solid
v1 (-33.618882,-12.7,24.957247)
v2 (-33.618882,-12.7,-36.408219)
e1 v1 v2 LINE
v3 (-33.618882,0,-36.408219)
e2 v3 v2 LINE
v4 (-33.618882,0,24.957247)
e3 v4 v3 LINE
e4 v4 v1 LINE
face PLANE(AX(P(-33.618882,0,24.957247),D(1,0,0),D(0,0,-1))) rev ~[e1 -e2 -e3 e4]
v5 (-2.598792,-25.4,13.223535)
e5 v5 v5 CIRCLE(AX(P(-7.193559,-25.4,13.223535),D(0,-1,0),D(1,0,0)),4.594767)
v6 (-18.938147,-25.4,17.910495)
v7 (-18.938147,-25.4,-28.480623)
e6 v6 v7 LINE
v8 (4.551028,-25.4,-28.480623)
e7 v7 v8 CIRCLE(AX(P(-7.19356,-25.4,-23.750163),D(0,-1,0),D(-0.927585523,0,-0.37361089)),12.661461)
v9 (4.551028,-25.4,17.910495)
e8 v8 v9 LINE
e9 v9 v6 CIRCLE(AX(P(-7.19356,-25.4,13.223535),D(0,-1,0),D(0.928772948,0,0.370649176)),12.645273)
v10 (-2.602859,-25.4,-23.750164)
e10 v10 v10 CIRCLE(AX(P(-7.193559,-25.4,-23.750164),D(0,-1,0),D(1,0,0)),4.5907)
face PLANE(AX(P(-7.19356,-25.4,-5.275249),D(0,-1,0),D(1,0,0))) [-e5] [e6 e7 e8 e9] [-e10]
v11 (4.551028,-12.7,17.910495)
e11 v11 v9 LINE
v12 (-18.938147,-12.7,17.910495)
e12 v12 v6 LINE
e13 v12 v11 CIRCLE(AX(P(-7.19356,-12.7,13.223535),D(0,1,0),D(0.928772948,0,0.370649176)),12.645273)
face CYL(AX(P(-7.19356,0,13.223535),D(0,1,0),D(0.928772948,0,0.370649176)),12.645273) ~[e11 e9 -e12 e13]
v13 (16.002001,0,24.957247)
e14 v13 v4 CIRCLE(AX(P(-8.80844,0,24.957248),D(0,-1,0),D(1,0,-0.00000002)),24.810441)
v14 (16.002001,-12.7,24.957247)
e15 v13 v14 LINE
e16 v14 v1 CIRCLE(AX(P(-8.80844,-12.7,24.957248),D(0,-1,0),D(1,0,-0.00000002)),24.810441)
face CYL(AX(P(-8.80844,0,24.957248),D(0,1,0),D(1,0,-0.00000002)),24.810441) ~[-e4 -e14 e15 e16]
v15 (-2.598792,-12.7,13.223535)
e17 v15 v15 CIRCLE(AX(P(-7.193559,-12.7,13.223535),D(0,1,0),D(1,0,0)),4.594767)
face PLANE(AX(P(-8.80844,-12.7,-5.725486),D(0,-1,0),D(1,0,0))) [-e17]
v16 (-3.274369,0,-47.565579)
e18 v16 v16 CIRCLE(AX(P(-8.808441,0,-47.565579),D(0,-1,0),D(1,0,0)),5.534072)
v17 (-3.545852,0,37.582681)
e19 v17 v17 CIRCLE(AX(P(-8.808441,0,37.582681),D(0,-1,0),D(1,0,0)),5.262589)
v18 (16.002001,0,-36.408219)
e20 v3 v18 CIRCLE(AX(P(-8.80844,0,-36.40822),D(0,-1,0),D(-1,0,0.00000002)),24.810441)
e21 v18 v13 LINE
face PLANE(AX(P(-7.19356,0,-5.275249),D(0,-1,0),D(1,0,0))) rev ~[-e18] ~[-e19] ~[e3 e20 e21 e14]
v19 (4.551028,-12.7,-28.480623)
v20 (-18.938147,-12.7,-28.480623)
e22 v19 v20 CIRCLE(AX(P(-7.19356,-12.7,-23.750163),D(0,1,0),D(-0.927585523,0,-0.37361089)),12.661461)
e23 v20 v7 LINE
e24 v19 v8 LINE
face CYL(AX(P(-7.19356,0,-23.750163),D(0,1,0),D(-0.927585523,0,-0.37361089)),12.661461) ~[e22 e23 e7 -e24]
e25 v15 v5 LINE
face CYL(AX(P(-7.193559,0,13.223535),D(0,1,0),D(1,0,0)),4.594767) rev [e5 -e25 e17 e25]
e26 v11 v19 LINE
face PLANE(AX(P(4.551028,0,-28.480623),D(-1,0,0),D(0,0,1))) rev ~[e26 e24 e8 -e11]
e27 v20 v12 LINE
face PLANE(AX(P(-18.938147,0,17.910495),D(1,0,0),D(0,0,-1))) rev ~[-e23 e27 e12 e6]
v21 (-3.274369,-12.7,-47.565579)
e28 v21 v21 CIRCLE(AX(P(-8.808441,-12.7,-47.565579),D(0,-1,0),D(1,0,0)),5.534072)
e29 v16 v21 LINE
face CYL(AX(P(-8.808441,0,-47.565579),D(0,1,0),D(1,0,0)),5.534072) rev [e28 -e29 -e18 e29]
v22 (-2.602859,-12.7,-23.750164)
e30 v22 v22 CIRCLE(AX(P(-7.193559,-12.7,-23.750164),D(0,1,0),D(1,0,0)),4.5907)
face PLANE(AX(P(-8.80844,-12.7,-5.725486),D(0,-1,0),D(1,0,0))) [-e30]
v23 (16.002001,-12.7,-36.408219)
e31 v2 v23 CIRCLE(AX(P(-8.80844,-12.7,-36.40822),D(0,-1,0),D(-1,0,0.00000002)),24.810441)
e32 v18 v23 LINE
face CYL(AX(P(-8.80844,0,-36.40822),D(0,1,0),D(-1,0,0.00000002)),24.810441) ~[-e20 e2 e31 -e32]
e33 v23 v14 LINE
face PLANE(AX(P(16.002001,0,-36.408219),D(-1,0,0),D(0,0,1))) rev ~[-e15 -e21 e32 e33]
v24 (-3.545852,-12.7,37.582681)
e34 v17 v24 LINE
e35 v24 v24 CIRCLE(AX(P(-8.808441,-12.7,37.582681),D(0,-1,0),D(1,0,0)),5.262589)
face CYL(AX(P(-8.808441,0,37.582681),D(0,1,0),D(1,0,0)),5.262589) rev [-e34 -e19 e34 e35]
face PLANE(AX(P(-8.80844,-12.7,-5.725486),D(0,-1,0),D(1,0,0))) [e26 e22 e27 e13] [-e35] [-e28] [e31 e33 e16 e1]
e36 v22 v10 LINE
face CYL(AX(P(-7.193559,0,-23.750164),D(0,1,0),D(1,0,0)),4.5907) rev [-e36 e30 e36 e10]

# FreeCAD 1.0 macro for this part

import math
import FreeCAD as App
import Part
import Sketcher
Q = App.Units.Quantity

doc = App.newDocument("Part")
params = doc.addObject("Spreadsheet::Sheet", "Params")
for row, (alias, value) in enumerate([
    ("pad1_length", "0.5 in"),
    ("pad2_length", "1 in"),
], start=1):
    params.set(f"A{row}", alias)
    params.set(f"B{row}", "=" + value)
    params.setAlias(f"B{row}", alias)

body = doc.addObject("PartDesign::Body", "Body")

sketch1 = doc.addObject("Sketcher::SketchObject", "Sketch")
body.addObject(sketch1)
sketch1.AttachmentSupport = (doc.XZ_Plane, [""])
sketch1.MapMode = "FlatFace"
sketch1.addGeometry([
    Part.ArcOfCircle(Part.Circle(App.Vector(-9, 25, 0), App.Vector(0, 0, 1), 25), math.radians(0), math.radians(180)),
    Part.LineSegment(App.Vector(-34, 25, 0), App.Vector(-34, -36, 0)),
    Part.ArcOfCircle(Part.Circle(App.Vector(-9, -36, 0), App.Vector(0, 0, 1), 25), math.radians(180), math.radians(360)),
    Part.LineSegment(App.Vector(16, -36, 0), App.Vector(16, 25, 0)),
    Part.Circle(App.Vector(-9, -48, 0), App.Vector(0, 0, 1), 6),
    Part.Circle(App.Vector(-9, 38, 0), App.Vector(0, 0, 1), 5),
], False)
sketch1.addConstraint([
    Sketcher.Constraint("Tangent", 0, 2, 1, 1),
    Sketcher.Constraint("Tangent", 1, 2, 2, 1),
    Sketcher.Constraint("Tangent", 2, 2, 3, 1),
    Sketcher.Constraint("Tangent", 3, 2, 0, 1),
    Sketcher.Constraint("Vertical", 1),
    Sketcher.Constraint("Vertical", 3),
    Sketcher.Constraint("Vertical", 2, 3, 4, 3),
    Sketcher.Constraint("Vertical", 4, 3, 5, 3),
    Sketcher.Constraint("DistanceX", -1, 1, 2, 2, Q("0.63 in")),
    Sketcher.Constraint("Radius", 0, 24.810441),
    Sketcher.Constraint("Diameter", 4, 11.068144),
    Sketcher.Constraint("Diameter", 5, 10.525178),
    Sketcher.Constraint("DistanceY", 2, 3, 5, 3, 73.990901),
    Sketcher.Constraint("DistanceY", 1, 2, 1, 1, 61.365466),
    Sketcher.Constraint("DistanceY", 2, 3, -1, 1, 36.40822),
    Sketcher.Constraint("DistanceY", 4, 3, -1, 1, 47.565579),
])
pad1 = doc.addObject("PartDesign::Pad", "Pad")
body.addObject(pad1)
pad1.Profile = sketch1
pad1.setExpression("Length", "Params.pad1_length")

sketch2 = doc.addObject("Sketcher::SketchObject", "Sketch001")
body.addObject(sketch2)
sketch2.AttachmentSupport = (doc.XZ_Plane, [""])
sketch2.MapMode = "FlatFace"
sketch2.addGeometry([
    Part.ArcOfCircle(Part.Circle(App.Vector(-7.2, 13.2, 0), App.Vector(0, 0, 1), 12.6), math.radians(22), math.radians(158)),
    Part.LineSegment(App.Vector(-18.9, 17.9, 0), App.Vector(-18.9, -28.5, 0)),
    Part.ArcOfCircle(Part.Circle(App.Vector(-7.2, -23.8, 0), App.Vector(0, 0, 1), 12.7), math.radians(-158), math.radians(-22)),
    Part.LineSegment(App.Vector(4.6, -28.5, 0), App.Vector(4.6, 17.9, 0)),
    Part.Circle(App.Vector(-7.2, -23.8, 0), App.Vector(0, 0, 1), 4.6),
    Part.Circle(App.Vector(-7.2, 13.2, 0), App.Vector(0, 0, 1), 4.6),
], False)
sketch2.addConstraint([
    Sketcher.Constraint("Coincident", 0, 2, 1, 1),
    Sketcher.Constraint("Coincident", 1, 2, 2, 1),
    Sketcher.Constraint("Coincident", 2, 2, 3, 1),
    Sketcher.Constraint("Coincident", 3, 2, 0, 1),
    Sketcher.Constraint("Vertical", 1),
    Sketcher.Constraint("Vertical", 3),
    Sketcher.Constraint("Coincident", 4, 3, 2, 3),
    Sketcher.Constraint("Coincident", 5, 3, 0, 3),
    Sketcher.Constraint("Horizontal", 1, 2, 2, 2),
    Sketcher.Constraint("Horizontal", 0, 2, 3, 2),
    Sketcher.Constraint("Diameter", 4, 9.1814),
    Sketcher.Constraint("Radius", 2, 12.661461),
    Sketcher.Constraint("Diameter", 5, 9.189534),
    Sketcher.Constraint("Radius", 0, 12.645273),
    Sketcher.Constraint("DistanceY", 1, 2, 1, 1, 46.391118),
    Sketcher.Constraint("DistanceY", 2, 3, 0, 3, 36.973698),
    Sketcher.Constraint("DistanceX", 0, 3, -1, 1, 7.19356),
    Sketcher.Constraint("DistanceY", -1, 1, 0, 3, 13.223535),
])
pad2 = doc.addObject("PartDesign::Pad", "Pad001")
body.addObject(pad2)
pad2.Profile = sketch2
pad2.setExpression("Length", "Params.pad2_length")

doc.recompute()
